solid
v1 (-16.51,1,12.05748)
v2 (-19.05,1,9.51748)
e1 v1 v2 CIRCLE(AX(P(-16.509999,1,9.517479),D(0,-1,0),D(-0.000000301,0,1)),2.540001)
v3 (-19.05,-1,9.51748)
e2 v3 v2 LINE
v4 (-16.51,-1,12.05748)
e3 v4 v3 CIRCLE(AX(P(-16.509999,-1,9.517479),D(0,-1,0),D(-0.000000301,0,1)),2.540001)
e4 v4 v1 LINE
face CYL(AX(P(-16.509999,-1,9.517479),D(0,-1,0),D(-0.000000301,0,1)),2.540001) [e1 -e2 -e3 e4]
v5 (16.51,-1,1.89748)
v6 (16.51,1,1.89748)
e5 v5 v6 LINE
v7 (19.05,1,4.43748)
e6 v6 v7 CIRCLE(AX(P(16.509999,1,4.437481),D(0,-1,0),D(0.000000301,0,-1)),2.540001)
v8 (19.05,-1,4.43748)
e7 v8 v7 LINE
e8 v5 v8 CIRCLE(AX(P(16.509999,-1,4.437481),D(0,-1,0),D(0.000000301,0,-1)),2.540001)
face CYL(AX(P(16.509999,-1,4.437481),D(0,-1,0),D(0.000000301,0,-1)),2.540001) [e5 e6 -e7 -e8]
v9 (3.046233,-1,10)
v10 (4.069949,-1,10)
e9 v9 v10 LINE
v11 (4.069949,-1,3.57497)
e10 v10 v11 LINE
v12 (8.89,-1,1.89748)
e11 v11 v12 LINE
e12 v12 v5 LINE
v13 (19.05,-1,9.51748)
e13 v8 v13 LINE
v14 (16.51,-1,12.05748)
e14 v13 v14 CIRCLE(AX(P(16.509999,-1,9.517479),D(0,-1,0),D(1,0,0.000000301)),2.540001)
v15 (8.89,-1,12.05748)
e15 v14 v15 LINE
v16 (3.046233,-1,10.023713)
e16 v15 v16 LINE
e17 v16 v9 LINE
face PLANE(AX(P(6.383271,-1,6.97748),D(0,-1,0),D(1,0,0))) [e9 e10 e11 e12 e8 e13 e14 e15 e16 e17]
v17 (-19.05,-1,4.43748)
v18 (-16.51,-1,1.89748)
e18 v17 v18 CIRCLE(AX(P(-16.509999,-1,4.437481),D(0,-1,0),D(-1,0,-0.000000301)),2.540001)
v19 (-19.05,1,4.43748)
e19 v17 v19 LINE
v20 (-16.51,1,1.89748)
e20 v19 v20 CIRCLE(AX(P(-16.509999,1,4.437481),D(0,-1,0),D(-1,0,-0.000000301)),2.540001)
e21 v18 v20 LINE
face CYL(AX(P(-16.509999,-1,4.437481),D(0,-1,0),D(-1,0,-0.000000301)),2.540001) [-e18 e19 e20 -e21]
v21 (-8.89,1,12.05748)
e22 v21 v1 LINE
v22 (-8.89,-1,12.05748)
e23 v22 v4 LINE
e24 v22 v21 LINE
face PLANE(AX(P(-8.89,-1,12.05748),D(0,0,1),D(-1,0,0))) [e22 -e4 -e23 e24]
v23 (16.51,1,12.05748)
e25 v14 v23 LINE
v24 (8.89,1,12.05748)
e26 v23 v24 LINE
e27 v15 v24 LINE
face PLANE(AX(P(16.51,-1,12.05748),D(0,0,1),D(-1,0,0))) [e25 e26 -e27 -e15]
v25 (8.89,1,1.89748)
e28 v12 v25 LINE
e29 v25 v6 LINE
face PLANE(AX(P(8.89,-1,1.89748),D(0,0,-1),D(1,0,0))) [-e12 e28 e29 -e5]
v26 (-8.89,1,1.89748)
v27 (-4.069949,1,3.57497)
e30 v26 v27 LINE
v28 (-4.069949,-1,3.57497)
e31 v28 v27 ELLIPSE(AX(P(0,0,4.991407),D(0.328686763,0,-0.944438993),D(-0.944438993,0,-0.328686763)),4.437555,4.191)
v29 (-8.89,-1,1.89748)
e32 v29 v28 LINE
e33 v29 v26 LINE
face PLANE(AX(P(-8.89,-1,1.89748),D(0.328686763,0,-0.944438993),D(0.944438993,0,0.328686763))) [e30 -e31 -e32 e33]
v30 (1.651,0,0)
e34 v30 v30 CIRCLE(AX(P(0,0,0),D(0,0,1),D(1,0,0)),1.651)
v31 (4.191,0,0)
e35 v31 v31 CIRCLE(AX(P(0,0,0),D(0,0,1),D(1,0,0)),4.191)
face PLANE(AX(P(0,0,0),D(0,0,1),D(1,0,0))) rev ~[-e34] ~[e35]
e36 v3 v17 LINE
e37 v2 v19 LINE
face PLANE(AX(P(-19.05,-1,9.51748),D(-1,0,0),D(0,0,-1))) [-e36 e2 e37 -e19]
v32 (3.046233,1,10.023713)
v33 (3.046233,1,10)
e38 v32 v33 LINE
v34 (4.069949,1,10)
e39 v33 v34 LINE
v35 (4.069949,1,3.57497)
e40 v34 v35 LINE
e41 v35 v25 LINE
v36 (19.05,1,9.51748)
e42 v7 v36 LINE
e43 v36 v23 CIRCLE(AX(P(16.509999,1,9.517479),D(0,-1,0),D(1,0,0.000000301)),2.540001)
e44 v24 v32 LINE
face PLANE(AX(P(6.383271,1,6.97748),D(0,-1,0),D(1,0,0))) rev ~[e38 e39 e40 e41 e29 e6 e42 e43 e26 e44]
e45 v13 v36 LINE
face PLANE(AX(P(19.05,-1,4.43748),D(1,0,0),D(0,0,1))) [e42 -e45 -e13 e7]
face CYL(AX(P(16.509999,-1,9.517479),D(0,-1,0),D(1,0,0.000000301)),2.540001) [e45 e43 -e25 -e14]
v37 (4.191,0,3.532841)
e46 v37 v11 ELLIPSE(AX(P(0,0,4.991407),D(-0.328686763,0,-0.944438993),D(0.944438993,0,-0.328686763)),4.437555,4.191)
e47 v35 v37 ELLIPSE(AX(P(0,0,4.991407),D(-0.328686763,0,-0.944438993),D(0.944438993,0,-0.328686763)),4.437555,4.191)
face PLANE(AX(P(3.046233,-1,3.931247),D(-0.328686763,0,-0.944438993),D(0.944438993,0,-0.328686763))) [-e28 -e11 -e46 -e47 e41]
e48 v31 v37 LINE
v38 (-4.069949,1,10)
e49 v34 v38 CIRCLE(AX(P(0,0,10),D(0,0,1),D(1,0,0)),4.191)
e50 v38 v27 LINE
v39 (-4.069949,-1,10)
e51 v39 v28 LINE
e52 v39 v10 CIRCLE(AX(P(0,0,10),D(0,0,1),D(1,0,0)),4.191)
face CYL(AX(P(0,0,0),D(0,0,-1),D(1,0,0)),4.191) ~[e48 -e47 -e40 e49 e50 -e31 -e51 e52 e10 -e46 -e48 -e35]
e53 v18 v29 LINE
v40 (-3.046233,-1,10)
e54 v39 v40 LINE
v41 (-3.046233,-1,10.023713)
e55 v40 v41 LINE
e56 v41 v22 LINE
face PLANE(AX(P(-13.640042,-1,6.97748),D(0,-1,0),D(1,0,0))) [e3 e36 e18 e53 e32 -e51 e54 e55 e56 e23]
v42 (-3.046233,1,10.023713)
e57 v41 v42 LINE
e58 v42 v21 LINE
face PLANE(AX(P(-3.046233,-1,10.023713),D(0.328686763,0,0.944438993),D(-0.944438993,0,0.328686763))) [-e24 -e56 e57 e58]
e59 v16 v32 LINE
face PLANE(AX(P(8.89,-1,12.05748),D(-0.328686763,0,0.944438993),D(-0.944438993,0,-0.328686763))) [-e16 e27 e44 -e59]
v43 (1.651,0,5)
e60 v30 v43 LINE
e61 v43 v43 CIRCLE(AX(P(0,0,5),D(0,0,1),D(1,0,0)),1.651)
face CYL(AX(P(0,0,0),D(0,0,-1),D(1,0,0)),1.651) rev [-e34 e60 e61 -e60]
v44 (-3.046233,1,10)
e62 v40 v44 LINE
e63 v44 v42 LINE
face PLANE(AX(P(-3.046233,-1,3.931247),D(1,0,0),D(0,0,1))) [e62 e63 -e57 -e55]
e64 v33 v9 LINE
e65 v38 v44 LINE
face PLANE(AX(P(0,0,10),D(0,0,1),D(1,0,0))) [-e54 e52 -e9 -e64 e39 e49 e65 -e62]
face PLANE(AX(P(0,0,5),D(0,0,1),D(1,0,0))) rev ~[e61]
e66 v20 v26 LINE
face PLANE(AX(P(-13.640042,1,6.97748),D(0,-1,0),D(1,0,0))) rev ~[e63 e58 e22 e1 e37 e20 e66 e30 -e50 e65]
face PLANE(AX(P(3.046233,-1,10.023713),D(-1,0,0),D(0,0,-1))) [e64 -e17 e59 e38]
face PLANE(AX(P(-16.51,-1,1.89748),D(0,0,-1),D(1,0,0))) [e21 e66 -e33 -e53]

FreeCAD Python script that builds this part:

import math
import FreeCAD as App
import Part
import Sketcher

V = App.Vector
Q = App.Units.Quantity

doc = App.newDocument("Part")
body = doc.addObject("PartDesign::Body", "Body")

sketch1 = doc.addObject("Sketcher::SketchObject", "Sketch")
body.addObject(sketch1)
sketch1.AttachmentSupport = (doc.XY_Plane, [""])
sketch1.MapMode = "FlatFace"
sketch1.addGeometry(Part.Circle(V(0, 0, 0), V(0, 0, 1), 4.191), False)
sketch1.addConstraint([
    Sketcher.Constraint("Coincident", 0, 3, -1, 1),
    Sketcher.Constraint("Diameter", 0, Q("0.33 in")),
])
pad1 = doc.addObject("PartDesign::Pad", "Pad")
body.addObject(pad1)
pad1.Profile = sketch1
pad1.Length = 10

sketch2 = doc.addObject("Sketcher::SketchObject", "Sketch001")
body.addObject(sketch2)
sketch2.AttachmentSupport = (doc.XY_Plane, [""])
sketch2.MapMode = "FlatFace"
sketch2.addGeometry(Part.Circle(V(0, 0, 0), V(0, 0, 1), 1.651), False)
sketch2.addConstraint([
    Sketcher.Constraint("Coincident", 0, 3, -1, 1),
    Sketcher.Constraint("Diameter", 0, Q("0.13 in")),
])
pocket1 = doc.addObject("PartDesign::Pocket", "Pocket")
body.addObject(pocket1)
pocket1.Profile = sketch2
pocket1.Length = 5
pocket1.Reversed = True

sketch3 = doc.addObject("Sketcher::SketchObject", "Sketch002")
body.addObject(sketch3)
sketch3.AttachmentSupport = (doc.XZ_Plane, [""])
sketch3.MapMode = "FlatFace"
sketch3.AttachmentOffset = App.Placement(V(0, 0, 1), App.Rotation())
sketch3.addGeometry([
    Part.LineSegment(V(-16.51, 1.89748, 0), V(-8.89, 1.89748, 0)),
    Part.LineSegment(V(-8.89, 1.89748, 0), V(-3.046233, 3.931247, 0)),
    Part.LineSegment(V(-3.046233, 3.931247, 0), V(-3.046233, 10.023713, 0)),
    Part.LineSegment(V(-3.046233, 10.023713, 0), V(-8.89, 12.05748, 0)),
    Part.LineSegment(V(-8.89, 12.05748, 0), V(-16.51, 12.05748, 0)),
    Part.ArcOfCircle(Part.Circle(V(-16.509999, 9.517479, 0), V(0, 0, 1), 2.540001), math.radians(90.000017), math.radians(179.999983)),
    Part.LineSegment(V(-19.05, 9.51748, 0), V(-19.05, 4.43748, 0)),
    Part.ArcOfCircle(Part.Circle(V(-16.509999, 4.437481, 0), V(0, 0, 1), 2.540001), math.radians(-179.999983), math.radians(-90.000017)),
    Part.LineSegment(V(3.046233, 3.931247, 0), V(8.89, 1.89748, 0)),
    Part.LineSegment(V(8.89, 1.89748, 0), V(16.51, 1.89748, 0)),
    Part.ArcOfCircle(Part.Circle(V(16.509999, 4.437481, 0), V(0, 0, 1), 2.540001), math.radians(-89.999983), math.radians(-0.000017)),
    Part.LineSegment(V(19.05, 4.43748, 0), V(19.05, 9.51748, 0)),
    Part.ArcOfCircle(Part.Circle(V(16.509999, 9.517479, 0), V(0, 0, 1), 2.540001), math.radians(0.000017), math.radians(89.999983)),
    Part.LineSegment(V(16.51, 12.05748, 0), V(8.89, 12.05748, 0)),
    Part.LineSegment(V(8.89, 12.05748, 0), V(3.046233, 10.023713, 0)),
    Part.LineSegment(V(3.046233, 10.023713, 0), V(3.046233, 3.931247, 0)),
], False)
sketch3.addConstraint([
    Sketcher.Constraint("Coincident", 0, 2, 1, 1),
    Sketcher.Constraint("Coincident", 1, 2, 2, 1),
    Sketcher.Constraint("Coincident", 2, 2, 3, 1),
    Sketcher.Constraint("Coincident", 3, 2, 4, 1),
    Sketcher.Constraint("Tangent", 4, 2, 5, 1),
    Sketcher.Constraint("Tangent", 5, 2, 6, 1),
    Sketcher.Constraint("Tangent", 6, 2, 7, 1),
    Sketcher.Constraint("Tangent", 7, 2, 0, 1),
    Sketcher.Constraint("Coincident", 8, 2, 9, 1),
    Sketcher.Constraint("Tangent", 9, 2, 10, 1),
    Sketcher.Constraint("Tangent", 10, 2, 11, 1),
    Sketcher.Constraint("Tangent", 11, 2, 12, 1),
    Sketcher.Constraint("Tangent", 12, 2, 13, 1),
    Sketcher.Constraint("Coincident", 13, 2, 14, 1),
    Sketcher.Constraint("Coincident", 14, 2, 15, 1),
    Sketcher.Constraint("Coincident", 15, 2, 8, 1),
    Sketcher.Constraint("Horizontal", 0),
    Sketcher.Constraint("Vertical", 2),
    Sketcher.Constraint("Horizontal", 4),
    Sketcher.Constraint("Vertical", 6),
    Sketcher.Constraint("Horizontal", 9),
    Sketcher.Constraint("Vertical", 11),
    Sketcher.Constraint("Horizontal", 13),
    Sketcher.Constraint("Vertical", 15),
    Sketcher.Constraint("Equal", 5, 7),
    Sketcher.Constraint("Equal", 7, 10),
    Sketcher.Constraint("Equal", 10, 12),
    Sketcher.Constraint("Symmetric", 7, 3, 10, 3, -2),
    Sketcher.Constraint("Symmetric", 3, 2, 13, 2, -2),
    Sketcher.Constraint("Symmetric", 2, 2, 14, 2, -2),
    Sketcher.Constraint("Parallel", 3, 8),
    Sketcher.Constraint("Parallel", 1, 14),
    Sketcher.Constraint("Horizontal", 1, 2, 15, 2),
    Sketcher.Constraint("Vertical", 0, 2, 3, 2),
    Sketcher.Constraint("Radius", 5, Q("0.1 in")),
    Sketcher.Constraint("DistanceX", 0, 1, 0, 2, Q("0.3 in")),
    Sketcher.Constraint("DistanceY", 6, 2, 6, 1, Q("0.2 in")),
    Sketcher.Constraint("DistanceX", 0, 2, 10, 3, Q("1 in")),
    Sketcher.Constraint("DistanceY", 2, 1, 2, 2, Q("6.092466 mm")),
    Sketcher.Constraint("DistanceY", -1, 1, 5, 3, Q("9.517479 mm")),
    Sketcher.Constraint("Distance", 1, Q("6.187554 mm")),
])
pad2 = doc.addObject("PartDesign::Pad", "Pad001")
body.addObject(pad2)
pad2.Profile = sketch3
pad2.Length = 2
pad2.Reversed = True

doc.recompute()
